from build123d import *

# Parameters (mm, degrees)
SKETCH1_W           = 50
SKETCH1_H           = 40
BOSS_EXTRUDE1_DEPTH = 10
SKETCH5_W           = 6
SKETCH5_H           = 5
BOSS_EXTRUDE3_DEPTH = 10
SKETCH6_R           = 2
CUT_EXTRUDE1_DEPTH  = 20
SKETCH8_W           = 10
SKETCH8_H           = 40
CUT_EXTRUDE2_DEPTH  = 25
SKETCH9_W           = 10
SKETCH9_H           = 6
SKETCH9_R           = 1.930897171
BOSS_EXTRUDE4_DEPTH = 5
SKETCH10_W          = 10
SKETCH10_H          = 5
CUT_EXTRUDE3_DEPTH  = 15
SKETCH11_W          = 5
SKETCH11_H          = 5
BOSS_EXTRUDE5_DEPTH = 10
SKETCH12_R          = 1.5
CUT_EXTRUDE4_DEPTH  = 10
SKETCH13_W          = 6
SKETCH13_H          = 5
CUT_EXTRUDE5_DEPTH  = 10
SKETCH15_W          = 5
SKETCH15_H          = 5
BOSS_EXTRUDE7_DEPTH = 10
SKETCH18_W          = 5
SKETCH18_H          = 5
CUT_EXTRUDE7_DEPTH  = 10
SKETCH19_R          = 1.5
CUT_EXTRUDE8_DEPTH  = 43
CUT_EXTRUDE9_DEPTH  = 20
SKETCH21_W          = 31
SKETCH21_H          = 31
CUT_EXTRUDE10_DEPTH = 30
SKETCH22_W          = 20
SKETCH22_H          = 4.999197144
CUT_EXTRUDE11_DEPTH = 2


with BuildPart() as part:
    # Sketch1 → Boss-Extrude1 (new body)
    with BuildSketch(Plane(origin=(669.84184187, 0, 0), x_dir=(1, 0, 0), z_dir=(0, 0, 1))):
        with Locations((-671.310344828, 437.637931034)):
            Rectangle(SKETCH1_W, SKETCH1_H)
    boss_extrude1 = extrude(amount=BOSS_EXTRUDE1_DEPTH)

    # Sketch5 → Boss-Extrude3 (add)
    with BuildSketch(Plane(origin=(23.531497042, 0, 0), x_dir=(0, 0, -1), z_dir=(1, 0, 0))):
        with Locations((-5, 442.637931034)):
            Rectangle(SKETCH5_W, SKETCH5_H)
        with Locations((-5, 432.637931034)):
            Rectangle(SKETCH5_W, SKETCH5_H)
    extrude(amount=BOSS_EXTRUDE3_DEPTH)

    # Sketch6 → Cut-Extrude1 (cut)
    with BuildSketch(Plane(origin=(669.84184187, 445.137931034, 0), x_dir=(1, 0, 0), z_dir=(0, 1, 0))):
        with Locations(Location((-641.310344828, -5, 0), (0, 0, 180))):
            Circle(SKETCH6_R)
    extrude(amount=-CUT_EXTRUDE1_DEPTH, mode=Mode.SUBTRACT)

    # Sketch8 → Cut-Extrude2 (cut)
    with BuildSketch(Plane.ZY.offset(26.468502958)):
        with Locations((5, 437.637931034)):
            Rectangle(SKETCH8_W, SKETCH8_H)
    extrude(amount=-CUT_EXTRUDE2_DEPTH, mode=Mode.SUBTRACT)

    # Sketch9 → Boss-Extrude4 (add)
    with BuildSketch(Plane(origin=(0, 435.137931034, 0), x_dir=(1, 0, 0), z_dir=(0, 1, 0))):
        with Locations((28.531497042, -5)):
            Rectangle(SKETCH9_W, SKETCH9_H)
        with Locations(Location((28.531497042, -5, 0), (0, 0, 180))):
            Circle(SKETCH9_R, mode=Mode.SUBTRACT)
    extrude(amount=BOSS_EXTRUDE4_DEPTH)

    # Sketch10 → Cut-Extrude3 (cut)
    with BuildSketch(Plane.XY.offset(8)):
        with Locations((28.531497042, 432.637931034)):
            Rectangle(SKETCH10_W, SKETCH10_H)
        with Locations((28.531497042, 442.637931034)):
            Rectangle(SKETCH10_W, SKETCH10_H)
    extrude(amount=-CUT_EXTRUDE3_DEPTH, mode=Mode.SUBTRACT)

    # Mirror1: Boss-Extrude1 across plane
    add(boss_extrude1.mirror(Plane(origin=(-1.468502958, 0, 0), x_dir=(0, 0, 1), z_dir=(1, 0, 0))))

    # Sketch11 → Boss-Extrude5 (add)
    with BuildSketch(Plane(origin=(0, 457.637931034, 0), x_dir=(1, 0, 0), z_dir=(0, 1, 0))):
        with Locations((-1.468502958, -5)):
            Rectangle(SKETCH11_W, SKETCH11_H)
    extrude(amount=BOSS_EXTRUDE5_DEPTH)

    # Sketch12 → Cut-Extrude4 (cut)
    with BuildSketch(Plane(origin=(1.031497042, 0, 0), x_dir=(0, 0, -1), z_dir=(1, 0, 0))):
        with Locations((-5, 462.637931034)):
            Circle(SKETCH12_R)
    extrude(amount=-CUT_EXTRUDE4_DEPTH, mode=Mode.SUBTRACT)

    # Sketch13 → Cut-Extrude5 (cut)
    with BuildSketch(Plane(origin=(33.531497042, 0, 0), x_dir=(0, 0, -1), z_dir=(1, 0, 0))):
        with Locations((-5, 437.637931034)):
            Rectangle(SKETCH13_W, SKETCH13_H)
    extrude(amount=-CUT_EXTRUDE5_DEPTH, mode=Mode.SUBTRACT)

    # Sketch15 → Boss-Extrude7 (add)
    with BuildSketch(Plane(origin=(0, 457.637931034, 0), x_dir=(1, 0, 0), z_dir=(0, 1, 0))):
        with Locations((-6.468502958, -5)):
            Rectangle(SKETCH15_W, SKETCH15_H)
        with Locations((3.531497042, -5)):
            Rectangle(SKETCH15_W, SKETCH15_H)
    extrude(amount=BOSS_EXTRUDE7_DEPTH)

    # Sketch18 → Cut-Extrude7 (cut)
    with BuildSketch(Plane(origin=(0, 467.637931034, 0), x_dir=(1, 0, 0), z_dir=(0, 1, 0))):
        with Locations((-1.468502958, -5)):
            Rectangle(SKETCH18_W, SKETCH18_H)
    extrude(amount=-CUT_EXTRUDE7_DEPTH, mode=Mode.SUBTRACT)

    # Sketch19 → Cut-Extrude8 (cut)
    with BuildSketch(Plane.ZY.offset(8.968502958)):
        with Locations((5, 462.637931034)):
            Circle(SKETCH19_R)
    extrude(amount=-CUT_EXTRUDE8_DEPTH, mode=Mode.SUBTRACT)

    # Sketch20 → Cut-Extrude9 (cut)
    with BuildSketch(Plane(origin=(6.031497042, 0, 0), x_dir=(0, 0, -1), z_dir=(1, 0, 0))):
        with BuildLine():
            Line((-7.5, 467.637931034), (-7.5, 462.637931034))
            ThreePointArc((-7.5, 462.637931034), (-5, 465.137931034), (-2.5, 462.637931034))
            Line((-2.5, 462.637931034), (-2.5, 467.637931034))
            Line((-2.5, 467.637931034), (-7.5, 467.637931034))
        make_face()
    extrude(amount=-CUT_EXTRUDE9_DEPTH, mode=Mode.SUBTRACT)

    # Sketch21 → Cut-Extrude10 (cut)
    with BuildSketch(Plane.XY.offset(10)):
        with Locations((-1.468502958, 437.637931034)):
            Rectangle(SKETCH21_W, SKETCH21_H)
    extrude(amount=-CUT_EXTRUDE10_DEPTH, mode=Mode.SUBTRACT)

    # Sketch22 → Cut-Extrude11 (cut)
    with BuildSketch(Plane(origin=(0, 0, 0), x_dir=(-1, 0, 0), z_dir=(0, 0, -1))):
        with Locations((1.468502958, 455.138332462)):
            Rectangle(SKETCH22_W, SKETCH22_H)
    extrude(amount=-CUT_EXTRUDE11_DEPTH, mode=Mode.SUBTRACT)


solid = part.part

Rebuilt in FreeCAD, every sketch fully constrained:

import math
import FreeCAD as App
import Part
import Sketcher

V = App.Vector

doc = App.newDocument("Part")
body = doc.addObject("PartDesign::Body", "Body")

sketch1 = body.newObject("Sketcher::SketchObject", "Sketch")
sketch1.AttachmentSupport = (doc.getObject("XY_Plane"), [""])
sketch1.MapMode = "FlatFace"
sketch1.addGeometry([
    Part.LineSegment(V(-26, 458, 0), V(-26, 418, 0)),
    Part.LineSegment(V(-26, 418, 0), V(24, 418, 0)),
    Part.LineSegment(V(24, 418, 0), V(24, 458, 0)),
    Part.LineSegment(V(24, 458, 0), V(-26, 458, 0)),
], False)
sketch1.addConstraint([
    Sketcher.Constraint("Coincident", 0, 2, 1, 1),
    Sketcher.Constraint("Coincident", 1, 2, 2, 1),
    Sketcher.Constraint("Coincident", 2, 2, 3, 1),
    Sketcher.Constraint("Coincident", 3, 2, 0, 1),
    Sketcher.Constraint("Vertical", 0),
    Sketcher.Constraint("Horizontal", 1),
    Sketcher.Constraint("Vertical", 2),
    Sketcher.Constraint("Horizontal", 3),
    Sketcher.Constraint("DistanceX", 1, 1, 1, 2, 50.0),
    Sketcher.Constraint("DistanceY", 0, 2, 0, 1, 40.0),
    Sketcher.Constraint("DistanceY", -1, 1, 0, 2, 417.637931),
    Sketcher.Constraint("DistanceX", 0, 2, -1, 1, 26.468503),
])
pad1 = body.newObject("PartDesign::Pad", "Pad")
pad1.Profile = sketch1
pad1.Length = 10

sketch2 = body.newObject("Sketcher::SketchObject", "Sketch001")
sketch2.AttachmentSupport = (doc.getObject("YZ_Plane"), [""])
sketch2.MapMode = "FlatFace"
sketch2.AttachmentOffset = App.Placement(V(0, 0, 23.531497), App.Rotation())
sketch2.addGeometry([
    Part.LineSegment(V(445, 8, 0), V(440, 8, 0)),
    Part.LineSegment(V(440, 8, 0), V(440, 2, 0)),
    Part.LineSegment(V(440, 2, 0), V(445, 2, 0)),
    Part.LineSegment(V(445, 2, 0), V(445, 8, 0)),
    Part.LineSegment(V(435, 8, 0), V(430, 8, 0)),
    Part.LineSegment(V(430, 8, 0), V(430, 2, 0)),
    Part.LineSegment(V(430, 2, 0), V(435, 2, 0)),
    Part.LineSegment(V(435, 2, 0), V(435, 8, 0)),
], False)
sketch2.addConstraint([
    Sketcher.Constraint("Coincident", 0, 2, 1, 1),
    Sketcher.Constraint("Coincident", 1, 2, 2, 1),
    Sketcher.Constraint("Coincident", 2, 2, 3, 1),
    Sketcher.Constraint("Coincident", 3, 2, 0, 1),
    Sketcher.Constraint("Coincident", 4, 2, 5, 1),
    Sketcher.Constraint("Coincident", 5, 2, 6, 1),
    Sketcher.Constraint("Coincident", 6, 2, 7, 1),
    Sketcher.Constraint("Coincident", 7, 2, 4, 1),
    Sketcher.Constraint("Horizontal", 0),
    Sketcher.Constraint("Vertical", 1),
    Sketcher.Constraint("Horizontal", 2),
    Sketcher.Constraint("Vertical", 3),
    Sketcher.Constraint("Horizontal", 4),
    Sketcher.Constraint("Vertical", 5),
    Sketcher.Constraint("Horizontal", 6),
    Sketcher.Constraint("Vertical", 7),
    Sketcher.Constraint("Horizontal", 3, 2, 4, 2),
    Sketcher.Constraint("Horizontal", 2, 2, 5, 2),
    Sketcher.Constraint("Equal", 2, 4),
    Sketcher.Constraint("DistanceX", 0, 2, 0, 1, 5.0),
    Sketcher.Constraint("DistanceY", 1, 2, 1, 1, 6.0),
    Sketcher.Constraint("DistanceY", -1, 1, 0, 2, 8.0),
    Sketcher.Constraint("DistanceX", 4, 2, 0, 2, 10.0),
    Sketcher.Constraint("DistanceX", -1, 1, 0, 2, 440.137931),
])
pad2 = body.newObject("PartDesign::Pad", "Pad001")
pad2.Profile = sketch2
pad2.Length = 10

sketch3 = body.newObject("Sketcher::SketchObject", "Sketch002")
sketch3.AttachmentSupport = (doc.getObject("XZ_Plane"), [""])
sketch3.MapMode = "FlatFace"
sketch3.AttachmentOffset = App.Placement(V(0, 0, -445.137931), App.Rotation())
sketch3.addGeometry(Part.Circle(V(28.5, 5, 0), V(0, 0, 1), 2), False)
sketch3.addConstraint([
    Sketcher.Constraint("Diameter", 0, 4.0),
    Sketcher.Constraint("DistanceY", -1, 1, 0, 3, 5.0),
    Sketcher.Constraint("DistanceX", -1, 1, 0, 3, 28.531497),
])
pocket1 = body.newObject("PartDesign::Pocket", "Pocket")
pocket1.Profile = sketch3
pocket1.Length = 20
pocket1.Reversed = True

sketch4 = body.newObject("Sketcher::SketchObject", "Sketch003")
sketch4.AttachmentSupport = (doc.getObject("YZ_Plane"), [""])
sketch4.MapMode = "FlatFace"
sketch4.AttachmentOffset = App.Placement(V(0, 0, -26.468503), App.Rotation())
sketch4.addGeometry([
    Part.LineSegment(V(458, 0, 0), V(418, 0, 0)),
    Part.LineSegment(V(418, 0, 0), V(418, 10, 0)),
    Part.LineSegment(V(418, 10, 0), V(458, 10, 0)),
    Part.LineSegment(V(458, 10, 0), V(458, 0, 0)),
], False)
sketch4.addConstraint([
    Sketcher.Constraint("Coincident", 0, 2, 1, 1),
    Sketcher.Constraint("Coincident", 1, 2, 2, 1),
    Sketcher.Constraint("Coincident", 2, 2, 3, 1),
    Sketcher.Constraint("Coincident", 3, 2, 0, 1),
    Sketcher.Constraint("Horizontal", 0),
    Sketcher.Constraint("Vertical", 1),
    Sketcher.Constraint("Horizontal", 2),
    Sketcher.Constraint("Vertical", 3),
    Sketcher.Constraint("PointOnObject", 0, 2, -1),
    Sketcher.Constraint("DistanceX", 0, 2, 0, 1, 40.0),
    Sketcher.Constraint("DistanceY", 1, 1, 1, 2, 10.0),
    Sketcher.Constraint("DistanceX", -1, 1, 0, 2, 417.637931),
])
pocket2 = body.newObject("PartDesign::Pocket", "Pocket001")
pocket2.Profile = sketch4
pocket2.Length = 25
pocket2.Reversed = True

sketch5 = body.newObject("Sketcher::SketchObject", "Sketch004")
sketch5.AttachmentSupport = (doc.getObject("XZ_Plane"), [""])
sketch5.MapMode = "FlatFace"
sketch5.AttachmentOffset = App.Placement(V(0, 0, -435.137931), App.Rotation())
sketch5.addGeometry([
    Part.LineSegment(V(23.5, 2, 0), V(23.5, 8, 0)),
    Part.LineSegment(V(23.5, 8, 0), V(33.5, 8, 0)),
    Part.LineSegment(V(33.5, 8, 0), V(33.5, 2, 0)),
    Part.LineSegment(V(33.5, 2, 0), V(23.5, 2, 0)),
    Part.Circle(V(28.5, 5, 0), V(0, 0, 1), 1.9),
], False)
sketch5.addConstraint([
    Sketcher.Constraint("Coincident", 0, 2, 1, 1),
    Sketcher.Constraint("Coincident", 1, 2, 2, 1),
    Sketcher.Constraint("Coincident", 2, 2, 3, 1),
    Sketcher.Constraint("Coincident", 3, 2, 0, 1),
    Sketcher.Constraint("Vertical", 0),
    Sketcher.Constraint("Horizontal", 1),
    Sketcher.Constraint("Vertical", 2),
    Sketcher.Constraint("Horizontal", 3),
    Sketcher.Constraint("DistanceX", 1, 1, 1, 2, 10.0),
    Sketcher.Constraint("DistanceY", 0, 1, 0, 2, 6.0),
    Sketcher.Constraint("DistanceY", -1, 1, 4, 3, 5.0),
    Sketcher.Constraint("DistanceY", -1, 1, 0, 2, 8.0),
    Sketcher.Constraint("DistanceX", 0, 2, 4, 3, 5.0),
    Sketcher.Constraint("Diameter", 4, 3.861794),
    Sketcher.Constraint("DistanceX", -1, 1, 4, 3, 28.531497),
])
pad3 = body.newObject("PartDesign::Pad", "Pad002")
pad3.Profile = sketch5
pad3.Length = 5
pad3.Reversed = True

sketch6 = body.newObject("Sketcher::SketchObject", "Sketch005")
sketch6.AttachmentSupport = (doc.getObject("XY_Plane"), [""])
sketch6.MapMode = "FlatFace"
sketch6.AttachmentOffset = App.Placement(V(0, 0, 8), App.Rotation())
sketch6.addGeometry([
    Part.LineSegment(V(24, 435, 0), V(24, 430, 0)),
    Part.LineSegment(V(24, 430, 0), V(34, 430, 0)),
    Part.LineSegment(V(34, 430, 0), V(34, 435, 0)),
    Part.LineSegment(V(34, 435, 0), V(24, 435, 0)),
    Part.LineSegment(V(24, 445, 0), V(24, 440, 0)),
    Part.LineSegment(V(24, 440, 0), V(34, 440, 0)),
    Part.LineSegment(V(34, 440, 0), V(34, 445, 0)),
    Part.LineSegment(V(34, 445, 0), V(24, 445, 0)),
], False)
sketch6.addConstraint([
    Sketcher.Constraint("Coincident", 0, 2, 1, 1),
    Sketcher.Constraint("Coincident", 1, 2, 2, 1),
    Sketcher.Constraint("Coincident", 2, 2, 3, 1),
    Sketcher.Constraint("Coincident", 3, 2, 0, 1),
    Sketcher.Constraint("Coincident", 4, 2, 5, 1),
    Sketcher.Constraint("Coincident", 5, 2, 6, 1),
    Sketcher.Constraint("Coincident", 6, 2, 7, 1),
    Sketcher.Constraint("Coincident", 7, 2, 4, 1),
    Sketcher.Constraint("Vertical", 0),
    Sketcher.Constraint("Horizontal", 1),
    Sketcher.Constraint("Vertical", 2),
    Sketcher.Constraint("Horizontal", 3),
    Sketcher.Constraint("Vertical", 4),
    Sketcher.Constraint("Horizontal", 5),
    Sketcher.Constraint("Vertical", 6),
    Sketcher.Constraint("Horizontal", 7),
    Sketcher.Constraint("Vertical", 3, 2, 4, 2),
    Sketcher.Constraint("Vertical", 2, 2, 5, 2),
    Sketcher.Constraint("Equal", 2, 4),
    Sketcher.Constraint("DistanceX", 1, 1, 1, 2, 10.0),
    Sketcher.Constraint("DistanceY", 0, 2, 0, 1, 5.0),
    Sketcher.Constraint("DistanceY", 3, 2, 4, 2, 5.0),
    Sketcher.Constraint("DistanceY", -1, 1, 0, 2, 430.137931),
    Sketcher.Constraint("DistanceX", -1, 1, 0, 2, 23.531497),
])
pocket3 = body.newObject("PartDesign::Pocket", "Pocket002")
pocket3.Profile = sketch6
pocket3.Length = 15
doc.recompute()

datumplane = body.newObject("PartDesign::Plane", "DatumPlane")
datumplane.AttachmentSupport = (doc.getObject("YZ_Plane"), [""])
datumplane.MapMode = "FlatFace"
datumplane.AttachmentOffset = App.Placement(V(0, 0, -1.468503), App.Rotation())
mirrored = body.newObject("PartDesign::Mirrored", "Mirrored")
mirrored.Originals = [pad1]
mirrored.MirrorPlane = (datumplane, [""])
body.Tip = mirrored

sketch7 = body.newObject("Sketcher::SketchObject", "Sketch006")
sketch7.AttachmentSupport = (doc.getObject("XZ_Plane"), [""])
sketch7.MapMode = "FlatFace"
sketch7.AttachmentOffset = App.Placement(V(0, 0, -457.637931), App.Rotation())
sketch7.addGeometry([
    Part.LineSegment(V(-4, 2, 0), V(-4, 8, 0)),
    Part.LineSegment(V(-4, 8, 0), V(1, 8, 0)),
    Part.LineSegment(V(1, 8, 0), V(1, 2, 0)),
    Part.LineSegment(V(1, 2, 0), V(-4, 2, 0)),
], False)
sketch7.addConstraint([
    Sketcher.Constraint("Coincident", 0, 2, 1, 1),
    Sketcher.Constraint("Coincident", 1, 2, 2, 1),
    Sketcher.Constraint("Coincident", 2, 2, 3, 1),
    Sketcher.Constraint("Coincident", 3, 2, 0, 1),
    Sketcher.Constraint("Vertical", 0),
    Sketcher.Constraint("Horizontal", 1),
    Sketcher.Constraint("Vertical", 2),
    Sketcher.Constraint("Horizontal", 3),
    Sketcher.Constraint("Equal", 3, 0),
    Sketcher.Constraint("DistanceX", 1, 1, 1, 2, 5.0),
    Sketcher.Constraint("DistanceY", -1, 1, 0, 2, 7.5),
    Sketcher.Constraint("DistanceX", 0, 2, -1, 1, 3.968503),
])
pad4 = body.newObject("PartDesign::Pad", "Pad003")
pad4.Profile = sketch7
pad4.Length = 10
pad4.Reversed = True

sketch8 = body.newObject("Sketcher::SketchObject", "Sketch007")
sketch8.AttachmentSupport = (doc.getObject("YZ_Plane"), [""])
sketch8.MapMode = "FlatFace"
sketch8.AttachmentOffset = App.Placement(V(0, 0, 1.031497), App.Rotation())
sketch8.addGeometry(Part.Circle(V(462.6, 5, 0), V(0, 0, 1), 1.5), False)
sketch8.addConstraint([
    Sketcher.Constraint("Diameter", 0, 3.0),
    Sketcher.Constraint("DistanceY", -1, 1, 0, 3, 5.0),
    Sketcher.Constraint("DistanceX", -1, 1, 0, 3, 462.637931),
])
pocket4 = body.newObject("PartDesign::Pocket", "Pocket003")
pocket4.Profile = sketch8
pocket4.Length = 10

sketch9 = body.newObject("Sketcher::SketchObject", "Sketch008")
sketch9.AttachmentSupport = (doc.getObject("YZ_Plane"), [""])
sketch9.MapMode = "FlatFace"
sketch9.AttachmentOffset = App.Placement(V(0, 0, 33.531497), App.Rotation())
sketch9.addGeometry([
    Part.LineSegment(V(440, 8, 0), V(435, 8, 0)),
    Part.LineSegment(V(435, 8, 0), V(435, 2, 0)),
    Part.LineSegment(V(435, 2, 0), V(440, 2, 0)),
    Part.LineSegment(V(440, 2, 0), V(440, 8, 0)),
], False)
sketch9.addConstraint([
    Sketcher.Constraint("Coincident", 0, 2, 1, 1),
    Sketcher.Constraint("Coincident", 1, 2, 2, 1),
    Sketcher.Constraint("Coincident", 2, 2, 3, 1),
    Sketcher.Constraint("Coincident", 3, 2, 0, 1),
    Sketcher.Constraint("Horizontal", 0),
    Sketcher.Constraint("Vertical", 1),
    Sketcher.Constraint("Horizontal", 2),
    Sketcher.Constraint("Vertical", 3),
    Sketcher.Constraint("DistanceX", 0, 2, 0, 1, 5.0),
    Sketcher.Constraint("DistanceY", 1, 2, 1, 1, 6.0),
    Sketcher.Constraint("DistanceY", -1, 1, 0, 2, 8.0),
    Sketcher.Constraint("DistanceX", -1, 1, 0, 2, 435.137931),
])
pocket5 = body.newObject("PartDesign::Pocket", "Pocket004")
pocket5.Profile = sketch9
pocket5.Length = 10

sketch10 = body.newObject("Sketcher::SketchObject", "Sketch009")
sketch10.AttachmentSupport = (doc.getObject("XZ_Plane"), [""])
sketch10.MapMode = "FlatFace"
sketch10.AttachmentOffset = App.Placement(V(0, 0, -457.637931), App.Rotation())
sketch10.addGeometry([
    Part.LineSegment(V(-9, 2, 0), V(-9, 8, 0)),
    Part.LineSegment(V(-9, 8, 0), V(-4, 8, 0)),
    Part.LineSegment(V(-4, 8, 0), V(-4, 2, 0)),
    Part.LineSegment(V(-4, 2, 0), V(-9, 2, 0)),
    Part.LineSegment(V(1, 2, 0), V(1, 8, 0)),
    Part.LineSegment(V(1, 8, 0), V(6, 8, 0)),
    Part.LineSegment(V(6, 8, 0), V(6, 2, 0)),
    Part.LineSegment(V(6, 2, 0), V(1, 2, 0)),
], False)
sketch10.addConstraint([
    Sketcher.Constraint("Coincident", 0, 2, 1, 1),
    Sketcher.Constraint("Coincident", 1, 2, 2, 1),
    Sketcher.Constraint("Coincident", 2, 2, 3, 1),
    Sketcher.Constraint("Coincident", 3, 2, 0, 1),
    Sketcher.Constraint("Coincident", 4, 2, 5, 1),
    Sketcher.Constraint("Coincident", 5, 2, 6, 1),
    Sketcher.Constraint("Coincident", 6, 2, 7, 1),
    Sketcher.Constraint("Coincident", 7, 2, 4, 1),
    Sketcher.Constraint("Vertical", 0),
    Sketcher.Constraint("Horizontal", 1),
    Sketcher.Constraint("Vertical", 2),
    Sketcher.Constraint("Horizontal", 3),
    Sketcher.Constraint("Vertical", 4),
    Sketcher.Constraint("Horizontal", 5),
    Sketcher.Constraint("Vertical", 6),
    Sketcher.Constraint("Horizontal", 7),
    Sketcher.Constraint("Horizontal", 1, 2, 4, 2),
    Sketcher.Constraint("Horizontal", 3, 2, 6, 2),
    Sketcher.Constraint("Equal", 3, 5),
    Sketcher.Constraint("Equal", 7, 0),
    Sketcher.Constraint("DistanceX", 1, 1, 1, 2, 5.0),
    Sketcher.Constraint("DistanceX", 1, 2, 4, 2, 5.0),
    Sketcher.Constraint("DistanceY", -1, 1, 0, 2, 7.5),
    Sketcher.Constraint("DistanceX", 0, 2, -1, 1, 8.968503),
])
pad5 = body.newObject("PartDesign::Pad", "Pad004")
pad5.Profile = sketch10
pad5.Length = 10
pad5.Reversed = True

sketch11 = body.newObject("Sketcher::SketchObject", "Sketch010")
sketch11.AttachmentSupport = (doc.getObject("XZ_Plane"), [""])
sketch11.MapMode = "FlatFace"
sketch11.AttachmentOffset = App.Placement(V(0, 0, -467.637931), App.Rotation())
sketch11.addGeometry([
    Part.LineSegment(V(-4, 2, 0), V(-4, 8, 0)),
    Part.LineSegment(V(-4, 8, 0), V(1, 8, 0)),
    Part.LineSegment(V(1, 8, 0), V(1, 2, 0)),
    Part.LineSegment(V(1, 2, 0), V(-4, 2, 0)),
], False)
sketch11.addConstraint([
    Sketcher.Constraint("Coincident", 0, 2, 1, 1),
    Sketcher.Constraint("Coincident", 1, 2, 2, 1),
    Sketcher.Constraint("Coincident", 2, 2, 3, 1),
    Sketcher.Constraint("Coincident", 3, 2, 0, 1),
    Sketcher.Constraint("Vertical", 0),
    Sketcher.Constraint("Horizontal", 1),
    Sketcher.Constraint("Vertical", 2),
    Sketcher.Constraint("Horizontal", 3),
    Sketcher.Constraint("Equal", 3, 0),
    Sketcher.Constraint("DistanceX", 1, 1, 1, 2, 5.0),
    Sketcher.Constraint("DistanceY", -1, 1, 0, 2, 7.5),
    Sketcher.Constraint("DistanceX", 0, 2, -1, 1, 3.968503),
])
pocket6 = body.newObject("PartDesign::Pocket", "Pocket005")
pocket6.Profile = sketch11
pocket6.Length = 10
pocket6.Reversed = True

sketch12 = body.newObject("Sketcher::SketchObject", "Sketch011")
sketch12.AttachmentSupport = (doc.getObject("YZ_Plane"), [""])
sketch12.MapMode = "FlatFace"
sketch12.AttachmentOffset = App.Placement(V(0, 0, -8.968503), App.Rotation())
sketch12.addGeometry(Part.Circle(V(462.6, 5, 0), V(0, 0, 1), 1.5), False)
sketch12.addConstraint([
    Sketcher.Constraint("Diameter", 0, 3.0),
    Sketcher.Constraint("DistanceY", -1, 1, 0, 3, 5.0),
    Sketcher.Constraint("DistanceX", -1, 1, 0, 3, 462.637931),
])
pocket7 = body.newObject("PartDesign::Pocket", "Pocket006")
pocket7.Profile = sketch12
pocket7.Length = 43
pocket7.Reversed = True

sketch13 = body.newObject("Sketcher::SketchObject", "Sketch012")
sketch13.AttachmentSupport = (doc.getObject("YZ_Plane"), [""])
sketch13.MapMode = "FlatFace"
sketch13.AttachmentOffset = App.Placement(V(0, 0, 6.031497), App.Rotation())
sketch13.addGeometry([
    Part.LineSegment(V(467.6, 7.5, 0), V(462.6, 7.5, 0)),
    Part.ArcOfCircle(Part.Circle(V(462.6, 5, 0), V(0, 0, 1), 2.5), math.radians(-90), math.radians(90)),
    Part.LineSegment(V(462.6, 2.5, 0), V(467.6, 2.5, 0)),
    Part.LineSegment(V(467.6, 2.5, 0), V(467.6, 7.5, 0)),
], False)
sketch13.addConstraint([
    Sketcher.Constraint("Tangent", 0, 2, 1, 2),
    Sketcher.Constraint("Tangent", 1, 1, 2, 1),
    Sketcher.Constraint("Coincident", 2, 2, 3, 1),
    Sketcher.Constraint("Coincident", 3, 2, 0, 1),
    Sketcher.Constraint("Horizontal", 0),
    Sketcher.Constraint("Horizontal", 2),
    Sketcher.Constraint("Vertical", 3),
    Sketcher.Constraint("Equal", 2, 3),
    Sketcher.Constraint("Radius", 1, 2.5),
    Sketcher.Constraint("DistanceY", -1, 1, 1, 3, 5.0),
    Sketcher.Constraint("DistanceX", -1, 1, 1, 3, 462.637931),
])
pocket8 = body.newObject("PartDesign::Pocket", "Pocket007")
pocket8.Profile = sketch13
pocket8.Length = 20

sketch14 = body.newObject("Sketcher::SketchObject", "Sketch013")
sketch14.AttachmentSupport = (doc.getObject("XY_Plane"), [""])
sketch14.MapMode = "FlatFace"
sketch14.AttachmentOffset = App.Placement(V(0, 0, 10), App.Rotation())
sketch14.addGeometry([
    Part.LineSegment(V(-17, 453, 0), V(-17, 422, 0)),
    Part.LineSegment(V(-17, 422, 0), V(14, 422, 0)),
    Part.LineSegment(V(14, 422, 0), V(14, 453, 0)),
    Part.LineSegment(V(14, 453, 0), V(-17, 453, 0)),
], False)
sketch14.addConstraint([
    Sketcher.Constraint("Coincident", 0, 2, 1, 1),
    Sketcher.Constraint("Coincident", 1, 2, 2, 1),
    Sketcher.Constraint("Coincident", 2, 2, 3, 1),
    Sketcher.Constraint("Coincident", 3, 2, 0, 1),
    Sketcher.Constraint("Vertical", 0),
    Sketcher.Constraint("Horizontal", 1),
    Sketcher.Constraint("Vertical", 2),
    Sketcher.Constraint("Horizontal", 3),
    Sketcher.Constraint("Equal", 3, 0),
    Sketcher.Constraint("DistanceX", 1, 1, 1, 2, 31.0),
    Sketcher.Constraint("DistanceY", -1, 1, 0, 2, 422.137931),
    Sketcher.Constraint("DistanceX", 0, 2, -1, 1, 16.968503),
])
pocket9 = body.newObject("PartDesign::Pocket", "Pocket008")
pocket9.Profile = sketch14
pocket9.Length = 30

sketch15 = body.newObject("Sketcher::SketchObject", "Sketch014")
sketch15.AttachmentSupport = (doc.getObject("XY_Plane"), [""])
sketch15.MapMode = "FlatFace"
sketch15.addGeometry([
    Part.LineSegment(V(8.5, 457.6, 0), V(8.5, 452.6, 0)),
    Part.LineSegment(V(8.5, 452.6, 0), V(-11.5, 452.6, 0)),
    Part.LineSegment(V(-11.5, 452.6, 0), V(-11.5, 457.6, 0)),
    Part.LineSegment(V(-11.5, 457.6, 0), V(8.5, 457.6, 0)),
], False)
sketch15.addConstraint([
    Sketcher.Constraint("Coincident", 0, 2, 1, 1),
    Sketcher.Constraint("Coincident", 1, 2, 2, 1),
    Sketcher.Constraint("Coincident", 2, 2, 3, 1),
    Sketcher.Constraint("Coincident", 3, 2, 0, 1),
    Sketcher.Constraint("Vertical", 0),
    Sketcher.Constraint("Horizontal", 1),
    Sketcher.Constraint("Vertical", 2),
    Sketcher.Constraint("Horizontal", 3),
    Sketcher.Constraint("DistanceX", 1, 2, 1, 1, 20.0),
    Sketcher.Constraint("DistanceY", 0, 2, 0, 1, 4.999197),
    Sketcher.Constraint("DistanceY", -1, 1, 2, 2, 457.637931),
    Sketcher.Constraint("DistanceX", -1, 1, 0, 2, 8.531497),
])
pocket10 = body.newObject("PartDesign::Pocket", "Pocket009")
pocket10.Profile = sketch15
pocket10.Length = 2
pocket10.Reversed = True

doc.recompute()
